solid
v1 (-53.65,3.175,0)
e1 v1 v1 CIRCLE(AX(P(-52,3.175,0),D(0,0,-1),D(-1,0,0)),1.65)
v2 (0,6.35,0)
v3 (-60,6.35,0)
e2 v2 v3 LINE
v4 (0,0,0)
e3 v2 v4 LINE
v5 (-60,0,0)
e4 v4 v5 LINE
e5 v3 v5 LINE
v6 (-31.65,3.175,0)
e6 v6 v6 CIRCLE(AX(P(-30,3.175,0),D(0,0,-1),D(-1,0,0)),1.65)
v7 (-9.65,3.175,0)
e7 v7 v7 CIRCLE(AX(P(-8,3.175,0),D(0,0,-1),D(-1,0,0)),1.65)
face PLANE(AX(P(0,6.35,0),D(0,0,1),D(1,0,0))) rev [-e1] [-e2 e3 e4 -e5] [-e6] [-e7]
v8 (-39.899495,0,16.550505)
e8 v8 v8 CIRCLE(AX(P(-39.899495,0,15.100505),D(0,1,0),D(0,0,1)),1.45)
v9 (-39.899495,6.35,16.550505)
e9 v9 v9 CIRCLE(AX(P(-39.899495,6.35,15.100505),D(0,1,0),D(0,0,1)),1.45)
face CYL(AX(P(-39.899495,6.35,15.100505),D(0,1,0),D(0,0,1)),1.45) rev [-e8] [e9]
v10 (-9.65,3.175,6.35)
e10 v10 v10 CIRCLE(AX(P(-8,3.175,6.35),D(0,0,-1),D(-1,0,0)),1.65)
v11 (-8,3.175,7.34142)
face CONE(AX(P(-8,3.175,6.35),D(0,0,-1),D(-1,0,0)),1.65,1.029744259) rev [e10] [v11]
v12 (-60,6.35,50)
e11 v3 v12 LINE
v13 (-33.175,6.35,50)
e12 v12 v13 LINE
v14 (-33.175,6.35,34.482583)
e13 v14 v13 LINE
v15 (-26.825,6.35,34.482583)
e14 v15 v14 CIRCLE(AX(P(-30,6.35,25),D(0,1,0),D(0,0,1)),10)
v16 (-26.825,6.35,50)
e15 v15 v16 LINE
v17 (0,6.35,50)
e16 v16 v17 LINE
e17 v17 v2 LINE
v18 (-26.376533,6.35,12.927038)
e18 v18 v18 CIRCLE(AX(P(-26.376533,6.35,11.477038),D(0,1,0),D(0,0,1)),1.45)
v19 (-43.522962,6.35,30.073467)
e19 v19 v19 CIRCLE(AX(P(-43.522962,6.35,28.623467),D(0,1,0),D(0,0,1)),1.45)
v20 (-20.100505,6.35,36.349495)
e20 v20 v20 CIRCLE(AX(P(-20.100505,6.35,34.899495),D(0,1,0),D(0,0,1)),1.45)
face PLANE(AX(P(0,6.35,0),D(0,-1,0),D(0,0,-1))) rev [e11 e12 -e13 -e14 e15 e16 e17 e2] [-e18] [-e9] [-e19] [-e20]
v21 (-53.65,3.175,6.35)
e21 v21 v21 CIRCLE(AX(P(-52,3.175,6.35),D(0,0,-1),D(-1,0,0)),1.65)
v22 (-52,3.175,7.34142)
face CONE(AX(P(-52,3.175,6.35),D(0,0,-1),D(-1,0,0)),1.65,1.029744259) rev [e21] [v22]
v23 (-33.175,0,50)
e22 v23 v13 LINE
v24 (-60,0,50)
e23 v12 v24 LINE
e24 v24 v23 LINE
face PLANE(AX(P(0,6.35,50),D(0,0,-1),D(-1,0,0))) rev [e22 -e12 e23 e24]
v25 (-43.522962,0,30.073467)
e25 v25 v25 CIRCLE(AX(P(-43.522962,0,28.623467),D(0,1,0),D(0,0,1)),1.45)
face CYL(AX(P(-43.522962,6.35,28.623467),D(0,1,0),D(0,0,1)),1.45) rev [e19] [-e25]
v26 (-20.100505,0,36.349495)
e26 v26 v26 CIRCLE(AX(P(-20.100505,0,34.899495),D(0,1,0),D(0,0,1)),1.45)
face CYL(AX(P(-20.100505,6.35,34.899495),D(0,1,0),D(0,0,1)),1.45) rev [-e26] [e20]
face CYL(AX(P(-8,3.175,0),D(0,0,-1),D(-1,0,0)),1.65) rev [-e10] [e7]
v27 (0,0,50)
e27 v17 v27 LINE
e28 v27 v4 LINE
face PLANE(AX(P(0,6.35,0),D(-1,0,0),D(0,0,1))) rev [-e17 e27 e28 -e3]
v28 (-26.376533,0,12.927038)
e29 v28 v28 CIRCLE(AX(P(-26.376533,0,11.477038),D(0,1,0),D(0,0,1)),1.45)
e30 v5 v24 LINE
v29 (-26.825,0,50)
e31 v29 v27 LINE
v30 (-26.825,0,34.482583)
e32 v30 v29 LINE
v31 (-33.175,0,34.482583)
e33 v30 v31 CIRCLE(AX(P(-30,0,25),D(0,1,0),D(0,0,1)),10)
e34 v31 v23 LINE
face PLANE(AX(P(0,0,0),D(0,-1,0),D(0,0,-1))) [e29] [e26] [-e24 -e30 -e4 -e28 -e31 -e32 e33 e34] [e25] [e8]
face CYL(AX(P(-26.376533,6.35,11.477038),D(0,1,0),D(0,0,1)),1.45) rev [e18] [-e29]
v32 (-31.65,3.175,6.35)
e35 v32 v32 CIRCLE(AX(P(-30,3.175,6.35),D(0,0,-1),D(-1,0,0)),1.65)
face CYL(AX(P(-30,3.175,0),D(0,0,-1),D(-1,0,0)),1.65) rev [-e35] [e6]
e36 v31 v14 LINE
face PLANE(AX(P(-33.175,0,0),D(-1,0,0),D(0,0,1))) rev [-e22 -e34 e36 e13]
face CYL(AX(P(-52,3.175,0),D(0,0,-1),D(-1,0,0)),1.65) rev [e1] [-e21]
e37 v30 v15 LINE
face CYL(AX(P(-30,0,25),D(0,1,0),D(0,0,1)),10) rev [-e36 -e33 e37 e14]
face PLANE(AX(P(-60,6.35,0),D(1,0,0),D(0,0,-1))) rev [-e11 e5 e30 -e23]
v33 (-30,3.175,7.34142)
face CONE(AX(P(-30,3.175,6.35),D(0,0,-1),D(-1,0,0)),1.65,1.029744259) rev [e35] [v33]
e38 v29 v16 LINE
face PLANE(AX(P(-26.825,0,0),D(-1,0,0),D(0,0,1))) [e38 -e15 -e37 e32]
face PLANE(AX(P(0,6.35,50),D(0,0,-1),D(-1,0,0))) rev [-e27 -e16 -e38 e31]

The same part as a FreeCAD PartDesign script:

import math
import FreeCAD as App
import Part
import Sketcher
Q = App.Units.Quantity

doc = App.newDocument("Part")
body = doc.addObject("PartDesign::Body", "Body")

# Sketch on XZ plane
sketch1 = body.newObject("Sketcher::SketchObject", "Sketch")
sketch1.AttachmentSupport = (doc.getObject("XZ_Plane"), [""])
sketch1.MapMode = "FlatFace"
sketch1.addGeometry(Part.LineSegment(App.Vector(-60, 0, 0), App.Vector(-60, 50, 0)), False)
sketch1.addGeometry(Part.LineSegment(App.Vector(-60, 50, 0), App.Vector(0, 50, 0)), False)
sketch1.addGeometry(Part.LineSegment(App.Vector(0, 50, 0), App.Vector(0, 0, 0)), False)
sketch1.addGeometry(Part.LineSegment(App.Vector(0, 0, 0), App.Vector(-60, 0, 0)), False)
sketch1.addConstraint(Sketcher.Constraint("Coincident", 0, 2, 1, 1))
sketch1.addConstraint(Sketcher.Constraint("Coincident", 1, 2, 2, 1))
sketch1.addConstraint(Sketcher.Constraint("Coincident", 2, 2, 3, 1))
sketch1.addConstraint(Sketcher.Constraint("Coincident", 3, 2, 0, 1))
sketch1.addConstraint(Sketcher.Constraint("Vertical", 0))
sketch1.addConstraint(Sketcher.Constraint("Horizontal", 1))
sketch1.addConstraint(Sketcher.Constraint("Vertical", 2))
sketch1.addConstraint(Sketcher.Constraint("Horizontal", 3))
sketch1.addConstraint(Sketcher.Constraint("Coincident", 2, 2, -1, 1))
sketch1.addConstraint(Sketcher.Constraint("DistanceX", 1, 1, 1, 2, Q("60 mm")))
sketch1.addConstraint(Sketcher.Constraint("DistanceY", 0, 1, 0, 2, Q("50 mm")))
pad1 = body.newObject("PartDesign::Pad", "Pad")
pad1.Profile = sketch1
pad1.Length = 6.35
pad1.Reversed = True

# Sketch on XZ plane
sketch2 = body.newObject("Sketcher::SketchObject", "Sketch001")
sketch2.AttachmentSupport = (doc.getObject("XZ_Plane"), [""])
sketch2.MapMode = "FlatFace"
sketch2.AttachmentOffset = App.Placement(App.Vector(0, 0, -6.35), App.Rotation())
sketch2.addGeometry(Part.ArcOfCircle(Part.Circle(App.Vector(-30, 25, 0), App.Vector(0, 0, 1), 10), math.radians(0), math.radians(71.488197)), False)
sketch2.addGeometry(Part.ArcOfCircle(Part.Circle(App.Vector(-30, 25, 0), App.Vector(0, 0, 1), 10), math.radians(108.511803), math.radians(360)), False)
sketch2.addGeometry(Part.LineSegment(App.Vector(-33.175, 34.482583, 0), App.Vector(-33.175, 50, 0)), False)
sketch2.addGeometry(Part.LineSegment(App.Vector(-33.175, 50, 0), App.Vector(-26.825, 50, 0)), False)
sketch2.addGeometry(Part.LineSegment(App.Vector(-26.825, 50, 0), App.Vector(-26.825, 34.482583, 0)), False)
sketch2.addConstraint(Sketcher.Constraint("Tangent", 0, 1, 1, 2))
sketch2.addConstraint(Sketcher.Constraint("Coincident", 1, 1, 2, 1))
sketch2.addConstraint(Sketcher.Constraint("Coincident", 2, 2, 3, 1))
sketch2.addConstraint(Sketcher.Constraint("Coincident", 3, 2, 4, 1))
sketch2.addConstraint(Sketcher.Constraint("Coincident", 4, 2, 0, 2))
sketch2.addConstraint(Sketcher.Constraint("Vertical", 2))
sketch2.addConstraint(Sketcher.Constraint("Horizontal", 3))
sketch2.addConstraint(Sketcher.Constraint("Vertical", 4))
sketch2.addConstraint(Sketcher.Constraint("Equal", 0, 1))
sketch2.addConstraint(Sketcher.Constraint("Horizontal", 1, 3, 0, 1))
sketch2.addConstraint(Sketcher.Constraint("Horizontal", 1, 1, 4, 2))
sketch2.addConstraint(Sketcher.Constraint("Radius", 0, Q("10 mm")))
sketch2.addConstraint(Sketcher.Constraint("DistanceX", 0, 3, -1, 1, Q("30 mm")))
sketch2.addConstraint(Sketcher.Constraint("DistanceY", -1, 1, 0, 3, Q("25 mm")))
sketch2.addConstraint(Sketcher.Constraint("DistanceY", -1, 1, 2, 2, Q("50 mm")))
sketch2.addConstraint(Sketcher.Constraint("DistanceX", 3, 1, 3, 2, Q("6.35 mm")))
pocket1 = body.newObject("PartDesign::Pocket", "Pocket")
pocket1.Profile = sketch2
pocket1.Length = 6.35
pocket1.Reversed = True

# Sketch on XZ plane
sketch3 = body.newObject("Sketcher::SketchObject", "Sketch002")
sketch3.AttachmentSupport = (doc.getObject("XZ_Plane"), [""])
sketch3.MapMode = "FlatFace"
sketch3.AttachmentOffset = App.Placement(App.Vector(0, 0, -6.35), App.Rotation())
sketch3.addGeometry(Part.Circle(App.Vector(-26.376533, 11.477038, 0), App.Vector(0, 0, 1), 1.45), False)
sketch3.addGeometry(Part.Circle(App.Vector(-39.899495, 15.100505, 0), App.Vector(0, 0, 1), 1.45), False)
sketch3.addGeometry(Part.Circle(App.Vector(-43.522962, 28.623467, 0), App.Vector(0, 0, 1), 1.45), False)
sketch3.addGeometry(Part.Circle(App.Vector(-20.100505, 34.899495, 0), App.Vector(0, 0, 1), 1.45), False)
sketch3.addConstraint(Sketcher.Constraint("Equal", 0, 1))
sketch3.addConstraint(Sketcher.Constraint("Equal", 1, 2))
sketch3.addConstraint(Sketcher.Constraint("Equal", 2, 3))
sketch3.addConstraint(Sketcher.Constraint("Diameter", 0, Q("2.9 mm")))
sketch3.addConstraint(Sketcher.Constraint("DistanceY", -1, 1, 0, 3, Q("11.477038 mm")))
sketch3.addConstraint(Sketcher.Constraint("DistanceX", 2, 3, -1, 1, Q("43.522962 mm")))
sketch3.addConstraint(Sketcher.Constraint("DistanceX", 1, 3, 0, 3, Q("13.522962 mm")))
sketch3.addConstraint(Sketcher.Constraint("DistanceY", 1, 3, 2, 3, Q("13.522962 mm")))
sketch3.addConstraint(Sketcher.Constraint("DistanceX", 2, 3, 0, 3, Q("17.146428 mm")))
sketch3.addConstraint(Sketcher.Constraint("DistanceY", 0, 3, 2, 3, Q("17.146428 mm")))
sketch3.addConstraint(Sketcher.Constraint("DistanceX", 0, 3, 3, 3, Q("6.276028 mm")))
sketch3.addConstraint(Sketcher.Constraint("DistanceY", 2, 3, 3, 3, Q("6.276028 mm")))
doc.recompute()
hole = body.newObject("PartDesign::Hole", "Hole")
hole.Profile = sketch3
hole.ThreadType = "None"
hole.Diameter = 2.9
hole.DepthType = "ThroughAll"
hole.Reversed = True

# Sketch on XY plane
sketch4 = body.newObject("Sketcher::SketchObject", "Sketch003")
sketch4.AttachmentSupport = (doc.getObject("XY_Plane"), [""])
sketch4.MapMode = "FlatFace"
sketch4.addGeometry(Part.Circle(App.Vector(-8, 3.175, 0), App.Vector(0, 0, 1), 1.65), False)
sketch4.addGeometry(Part.Circle(App.Vector(-30, 3.175, 0), App.Vector(0, 0, 1), 1.65), False)
sketch4.addGeometry(Part.Circle(App.Vector(-52, 3.175, 0), App.Vector(0, 0, 1), 1.65), False)
sketch4.addConstraint(Sketcher.Constraint("Equal", 0, 1))
sketch4.addConstraint(Sketcher.Constraint("Equal", 1, 2))
sketch4.addConstraint(Sketcher.Constraint("Horizontal", 0, 3, 1, 3))
sketch4.addConstraint(Sketcher.Constraint("Horizontal", 1, 3, 2, 3))
sketch4.addConstraint(Sketcher.Constraint("Diameter", 0, Q("3.3 mm")))
sketch4.addConstraint(Sketcher.Constraint("DistanceX", 0, 3, -1, 1, Q("8 mm")))
sketch4.addConstraint(Sketcher.Constraint("DistanceX", 1, 3, -1, 1, Q("30 mm")))
sketch4.addConstraint(Sketcher.Constraint("DistanceX", 2, 3, -1, 1, Q("52 mm")))
sketch4.addConstraint(Sketcher.Constraint("DistanceY", -1, 1, 0, 3, Q("3.175 mm")))
doc.recompute()
hole2 = body.newObject("PartDesign::Hole", "Hole001")
hole2.Profile = sketch4
hole2.ThreadType = "None"
hole2.Diameter = 3.3
hole2.DepthType = "Dimension"
hole2.Depth = 6.35
hole2.DrillPoint = "Angled"
hole2.DrillPointAngle = 118
hole2.Reversed = True

doc.recompute()
